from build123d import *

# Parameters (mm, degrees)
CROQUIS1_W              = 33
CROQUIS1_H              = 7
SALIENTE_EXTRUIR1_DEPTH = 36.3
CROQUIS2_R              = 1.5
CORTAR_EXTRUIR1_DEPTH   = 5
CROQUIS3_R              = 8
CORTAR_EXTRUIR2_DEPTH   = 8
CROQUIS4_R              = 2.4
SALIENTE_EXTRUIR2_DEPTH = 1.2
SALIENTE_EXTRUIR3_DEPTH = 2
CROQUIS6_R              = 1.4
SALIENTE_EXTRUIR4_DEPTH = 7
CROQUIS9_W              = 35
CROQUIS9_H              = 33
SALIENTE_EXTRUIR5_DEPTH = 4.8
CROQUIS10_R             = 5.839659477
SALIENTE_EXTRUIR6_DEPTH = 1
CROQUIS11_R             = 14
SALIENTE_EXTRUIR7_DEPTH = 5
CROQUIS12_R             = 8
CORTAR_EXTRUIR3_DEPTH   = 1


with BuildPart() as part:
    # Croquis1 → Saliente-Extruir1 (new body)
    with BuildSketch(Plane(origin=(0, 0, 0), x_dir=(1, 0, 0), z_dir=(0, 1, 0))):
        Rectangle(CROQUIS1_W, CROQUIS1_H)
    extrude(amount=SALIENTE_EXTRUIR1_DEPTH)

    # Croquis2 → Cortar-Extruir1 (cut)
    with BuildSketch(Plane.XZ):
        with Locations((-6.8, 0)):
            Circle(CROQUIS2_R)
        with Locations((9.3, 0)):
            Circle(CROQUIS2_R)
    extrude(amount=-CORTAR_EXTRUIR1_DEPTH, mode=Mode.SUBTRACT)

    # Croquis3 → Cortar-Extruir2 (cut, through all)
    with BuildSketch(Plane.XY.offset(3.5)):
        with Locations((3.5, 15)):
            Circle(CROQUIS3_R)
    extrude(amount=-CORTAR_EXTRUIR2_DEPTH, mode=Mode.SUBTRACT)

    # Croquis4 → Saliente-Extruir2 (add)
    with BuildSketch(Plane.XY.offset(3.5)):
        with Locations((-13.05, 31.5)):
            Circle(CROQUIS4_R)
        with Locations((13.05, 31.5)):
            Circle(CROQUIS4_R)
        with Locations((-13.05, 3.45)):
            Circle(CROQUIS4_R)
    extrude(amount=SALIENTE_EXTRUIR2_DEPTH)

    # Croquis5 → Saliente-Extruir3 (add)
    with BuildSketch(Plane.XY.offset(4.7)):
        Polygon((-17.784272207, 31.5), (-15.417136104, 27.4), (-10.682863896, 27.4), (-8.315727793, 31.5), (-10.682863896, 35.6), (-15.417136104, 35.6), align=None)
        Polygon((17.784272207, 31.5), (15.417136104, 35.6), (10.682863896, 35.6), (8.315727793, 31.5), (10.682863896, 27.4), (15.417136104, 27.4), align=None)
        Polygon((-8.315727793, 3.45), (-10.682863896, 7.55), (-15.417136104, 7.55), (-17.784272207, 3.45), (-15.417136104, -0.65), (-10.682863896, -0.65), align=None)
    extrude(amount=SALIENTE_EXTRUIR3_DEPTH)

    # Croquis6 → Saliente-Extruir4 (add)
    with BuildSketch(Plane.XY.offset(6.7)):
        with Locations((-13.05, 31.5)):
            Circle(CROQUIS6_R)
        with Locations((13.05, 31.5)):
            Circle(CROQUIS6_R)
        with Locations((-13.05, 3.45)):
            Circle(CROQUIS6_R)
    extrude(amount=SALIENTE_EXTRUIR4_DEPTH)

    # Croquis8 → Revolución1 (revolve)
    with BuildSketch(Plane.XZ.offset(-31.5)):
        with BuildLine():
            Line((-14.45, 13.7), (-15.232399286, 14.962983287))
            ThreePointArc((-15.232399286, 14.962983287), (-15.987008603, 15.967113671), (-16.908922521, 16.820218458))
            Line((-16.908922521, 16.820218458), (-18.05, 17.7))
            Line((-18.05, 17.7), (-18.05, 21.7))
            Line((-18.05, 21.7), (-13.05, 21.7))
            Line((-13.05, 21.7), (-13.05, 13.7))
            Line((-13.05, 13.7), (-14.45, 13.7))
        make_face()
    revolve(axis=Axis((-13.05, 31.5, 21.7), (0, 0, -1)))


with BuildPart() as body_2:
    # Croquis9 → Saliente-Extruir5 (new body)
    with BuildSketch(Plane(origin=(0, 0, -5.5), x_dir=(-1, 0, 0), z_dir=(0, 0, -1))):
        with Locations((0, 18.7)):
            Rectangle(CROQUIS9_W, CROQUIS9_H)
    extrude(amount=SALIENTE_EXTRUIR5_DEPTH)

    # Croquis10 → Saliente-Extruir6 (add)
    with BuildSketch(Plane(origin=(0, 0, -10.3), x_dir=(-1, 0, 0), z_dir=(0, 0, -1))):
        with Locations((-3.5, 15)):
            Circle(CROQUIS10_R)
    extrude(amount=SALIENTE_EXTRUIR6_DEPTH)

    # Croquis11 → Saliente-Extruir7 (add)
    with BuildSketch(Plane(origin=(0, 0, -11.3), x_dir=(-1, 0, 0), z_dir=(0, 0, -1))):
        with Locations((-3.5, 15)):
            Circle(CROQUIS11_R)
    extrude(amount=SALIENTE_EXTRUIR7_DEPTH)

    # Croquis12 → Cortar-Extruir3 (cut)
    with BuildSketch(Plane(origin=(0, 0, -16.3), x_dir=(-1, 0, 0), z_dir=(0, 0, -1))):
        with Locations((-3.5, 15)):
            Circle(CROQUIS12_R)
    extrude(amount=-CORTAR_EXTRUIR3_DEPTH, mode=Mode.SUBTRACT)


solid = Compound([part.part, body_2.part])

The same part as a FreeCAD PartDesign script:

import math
import FreeCAD as App
import Part
import Sketcher
Q = App.Units.Quantity


def add_polygon(sketch, points):
    """Adds a closed chain of lines whose ends are joined by coincident constraints."""
    first, n = sketch.GeometryCount, len(points)
    for a, b in zip(points, points[1:] + points[:1]):
        sketch.addGeometry(Part.LineSegment(App.Vector(*a, 0), App.Vector(*b, 0)), False)
    for i in range(n):
        sketch.addConstraint(Sketcher.Constraint("Coincident", first + i, 2, first + (i + 1) % n, 1))

doc = App.newDocument("Part")
body = doc.addObject("PartDesign::Body", "Body")

# Sketch on XZ plane
sketch1 = body.newObject("Sketcher::SketchObject", "Sketch")
sketch1.AttachmentSupport = (doc.getObject("XZ_Plane"), [""])
sketch1.MapMode = "FlatFace"
add_polygon(sketch1, [(-16, -4), (-16, 4), (16, 4), (16, -4)])  # lines 0-3
sketch1.addConstraint([
    Sketcher.Constraint("Vertical", 0),
    Sketcher.Constraint("Horizontal", 1),
    Sketcher.Constraint("Vertical", 2),
    Sketcher.Constraint("Horizontal", 3),
    Sketcher.Constraint("Symmetric", 0, 2, 2, 2, -1, 1),
    Sketcher.Constraint("DistanceX", 1, 1, 1, 2, Q("33 mm")),
    Sketcher.Constraint("DistanceY", 0, 1, 0, 2, Q("7 mm")),
])
pad1 = body.newObject("PartDesign::Pad", "Pad")
pad1.Profile = sketch1
pad1.Length = 36.3
pad1.Reversed = True

# Sketch on XZ plane
sketch2 = body.newObject("Sketcher::SketchObject", "Sketch001")
sketch2.AttachmentSupport = (doc.getObject("XZ_Plane"), [""])
sketch2.MapMode = "FlatFace"
sketch2.addGeometry([
    Part.Circle(App.Vector(-6.8, 0, 0), App.Vector(0, 0, 1), 1.5),
    Part.Circle(App.Vector(9.3, 0, 0), App.Vector(0, 0, 1), 1.5),
], False)
sketch2.addConstraint([
    Sketcher.Constraint("Equal", 0, 1),
    Sketcher.Constraint("PointOnObject", 0, 3, -1),
    Sketcher.Constraint("PointOnObject", 1, 3, -1),
    Sketcher.Constraint("Diameter", 0, Q("3 mm")),
    Sketcher.Constraint("DistanceX", 0, 3, -1, 1, Q("6.8 mm")),
    Sketcher.Constraint("DistanceX", -1, 1, 1, 3, Q("9.3 mm")),
])
pocket1 = body.newObject("PartDesign::Pocket", "Pocket")
pocket1.Profile = sketch2
pocket1.Length = 5

# Sketch on XY plane
sketch3 = body.newObject("Sketcher::SketchObject", "Sketch002")
sketch3.AttachmentSupport = (doc.getObject("XY_Plane"), [""])
sketch3.MapMode = "FlatFace"
sketch3.AttachmentOffset = App.Placement(App.Vector(0, 0, 3.5), App.Rotation())
sketch3.addGeometry(Part.Circle(App.Vector(4, 15, 0), App.Vector(0, 0, 1), 8), False)
sketch3.addConstraint([
    Sketcher.Constraint("Diameter", 0, Q("16 mm")),
    Sketcher.Constraint("DistanceY", -1, 1, 0, 3, Q("15 mm")),
    Sketcher.Constraint("DistanceX", -1, 1, 0, 3, Q("3.5 mm")),
])
pocket2 = body.newObject("PartDesign::Pocket", "Pocket001")
pocket2.Profile = sketch3
pocket2.Type = "ThroughAll"

# Sketch on XY plane
sketch4 = body.newObject("Sketcher::SketchObject", "Sketch003")
sketch4.AttachmentSupport = (doc.getObject("XY_Plane"), [""])
sketch4.MapMode = "FlatFace"
sketch4.AttachmentOffset = App.Placement(App.Vector(0, 0, 3.5), App.Rotation())
sketch4.addGeometry([
    Part.Circle(App.Vector(-13.1, 31.5, 0), App.Vector(0, 0, 1), 2.4),
    Part.Circle(App.Vector(13.1, 31.5, 0), App.Vector(0, 0, 1), 2.4),
    Part.Circle(App.Vector(-13.1, 3.5, 0), App.Vector(0, 0, 1), 2.4),
], False)
sketch4.addConstraint([
    Sketcher.Constraint("Equal", 0, 1),
    Sketcher.Constraint("Equal", 1, 2),
    Sketcher.Constraint("Symmetric", 0, 3, 1, 3, -2),
    Sketcher.Constraint("Vertical", 0, 3, 2, 3),
    Sketcher.Constraint("Diameter", 0, Q("4.8 mm")),
    Sketcher.Constraint("DistanceY", -1, 1, 0, 3, Q("31.5 mm")),
    Sketcher.Constraint("DistanceX", 0, 3, 1, 3, Q("26.1 mm")),
    Sketcher.Constraint("DistanceY", -1, 1, 2, 3, Q("3.45 mm")),
])
pad2 = body.newObject("PartDesign::Pad", "Pad001")
pad2.Profile = sketch4
pad2.Length = 1.2

# Sketch on XY plane
sketch5 = body.newObject("Sketcher::SketchObject", "Sketch004")
sketch5.AttachmentSupport = (doc.getObject("XY_Plane"), [""])
sketch5.MapMode = "FlatFace"
sketch5.AttachmentOffset = App.Placement(App.Vector(0, 0, 4.7), App.Rotation())
add_polygon(sketch5, [(-17.8, 31.5), (-15.4, 27.4), (-10.7, 27.4), (-8.3, 31.5), (-10.7, 35.6), (-15.4, 35.6)])  # lines 0-5
add_polygon(sketch5, [(17.8, 31.5), (15.4, 35.6), (10.7, 35.6), (8.3, 31.5), (10.7, 27.4), (15.4, 27.4)])  # lines 6-11
add_polygon(sketch5, [(-8.3, 3.5), (-10.7, 7.5), (-15.4, 7.5), (-17.8, 3.5), (-15.4, -0.7), (-10.7, -0.7)])  # lines 12-17
sketch5.addConstraint([
    Sketcher.Constraint("Horizontal", 1),
    Sketcher.Constraint("Horizontal", 4),
    Sketcher.Constraint("Horizontal", 7),
    Sketcher.Constraint("Horizontal", 10),
    Sketcher.Constraint("Horizontal", 13),
    Sketcher.Constraint("Horizontal", 16),
    Sketcher.Constraint("Symmetric", 4, 2, 6, 2, -2),
    Sketcher.Constraint("Symmetric", 2, 2, 8, 2, -2),
    Sketcher.Constraint("Symmetric", 1, 2, 9, 2, -2),
    Sketcher.Constraint("Symmetric", 5, 2, 11, 2, -2),
    Sketcher.Constraint("Parallel", 0, 3),
    Sketcher.Constraint("Parallel", 2, 5),
    Sketcher.Constraint("Parallel", 3, 6),
    Sketcher.Constraint("Parallel", 5, 8),
    Sketcher.Constraint("Parallel", 8, 11),
    Sketcher.Constraint("Parallel", 9, 12),
    Sketcher.Constraint("Parallel", 11, 14),
    Sketcher.Constraint("Parallel", 12, 15),
    Sketcher.Constraint("Parallel", 14, 17),
    Sketcher.Constraint("Horizontal", 2, 2, 5, 2),
    Sketcher.Constraint("Horizontal", 14, 2, 17, 2),
    Sketcher.Constraint("Vertical", 1, 2, 3, 2),
    Sketcher.Constraint("Vertical", 3, 2, 12, 2),
    Sketcher.Constraint("Vertical", 4, 2, 13, 2),
    Sketcher.Constraint("Vertical", 5, 2, 14, 2),
    Sketcher.Constraint("Vertical", 13, 2, 15, 2),
    Sketcher.Constraint("Angle", 0, Q("-60 deg")),
    Sketcher.Constraint("DistanceY", -1, 1, 0, 2, Q("27.4 mm")),
    Sketcher.Constraint("DistanceY", -1, 1, 2, 2, Q("31.5 mm")),
    Sketcher.Constraint("DistanceX", 3, 2, 6, 2, Q("26.1 mm")),
    Sketcher.Constraint("DistanceY", -1, 1, 12, 2, Q("7.55 mm")),
    Sketcher.Constraint("DistanceX", 1, 1, 1, 2, Q("4.734272 mm")),
])
pad3 = body.newObject("PartDesign::Pad", "Pad002")
pad3.Profile = sketch5
pad3.Length = 2

# Sketch on XY plane
sketch6 = body.newObject("Sketcher::SketchObject", "Sketch005")
sketch6.AttachmentSupport = (doc.getObject("XY_Plane"), [""])
sketch6.MapMode = "FlatFace"
sketch6.AttachmentOffset = App.Placement(App.Vector(0, 0, 6.7), App.Rotation())
sketch6.addGeometry([
    Part.Circle(App.Vector(-13.1, 31.5, 0), App.Vector(0, 0, 1), 1.4),
    Part.Circle(App.Vector(13.1, 31.5, 0), App.Vector(0, 0, 1), 1.4),
    Part.Circle(App.Vector(-13.1, 3.5, 0), App.Vector(0, 0, 1), 1.4),
], False)
sketch6.addConstraint([
    Sketcher.Constraint("Equal", 0, 1),
    Sketcher.Constraint("Equal", 1, 2),
    Sketcher.Constraint("Symmetric", 0, 3, 1, 3, -2),
    Sketcher.Constraint("Vertical", 0, 3, 2, 3),
    Sketcher.Constraint("Diameter", 0, Q("2.8 mm")),
    Sketcher.Constraint("DistanceY", -1, 1, 0, 3, Q("31.5 mm")),
    Sketcher.Constraint("DistanceX", 0, 3, 1, 3, Q("26.1 mm")),
    Sketcher.Constraint("DistanceY", -1, 1, 2, 3, Q("3.45 mm")),
])
pad4 = body.newObject("PartDesign::Pad", "Pad003")
pad4.Profile = sketch6
pad4.Length = 7

# Sketch on XZ plane
sketch7 = body.newObject("Sketcher::SketchObject", "Sketch006")
sketch7.AttachmentSupport = (doc.getObject("XZ_Plane"), [""])
sketch7.MapMode = "FlatFace"
sketch7.AttachmentOffset = App.Placement(App.Vector(0, 0, -31.5), App.Rotation())
sketch7.addGeometry([
    Part.LineSegment(App.Vector(-15.2, 15, 0), App.Vector(-14.4, 13.7, 0)),  # 0
    Part.LineSegment(App.Vector(-14.4, 13.7, 0), App.Vector(-13.1, 13.7, 0)),  # 1
    Part.LineSegment(App.Vector(-13.1, 13.7, 0), App.Vector(-13.1, 21.7, 0)),  # 2
    Part.LineSegment(App.Vector(-13.1, 21.7, 0), App.Vector(-18.1, 21.7, 0)),  # 3
    Part.LineSegment(App.Vector(-18.1, 21.7, 0), App.Vector(-18.1, 17.7, 0)),  # 4
    Part.LineSegment(App.Vector(-18.1, 17.7, 0), App.Vector(-16.9, 16.8, 0)),  # 5
    Part.ArcOfCircle(Part.Circle(App.Vector(-21.2, 11.3, 0), App.Vector(0, 0, 1), 7), math.radians(32), math.radians(52)),  # 6
], False)
sketch7.addGeometry(Part.LineSegment(App.Vector(-13.1, 21.7, 0), App.Vector(-13.1, 11.3, 0)), True)  # axis
sketch7.addConstraint([
    Sketcher.Constraint("Coincident", 0, 2, 1, 1),
    Sketcher.Constraint("Coincident", 1, 2, 2, 1),
    Sketcher.Constraint("Coincident", 2, 2, 3, 1),
    Sketcher.Constraint("Coincident", 3, 2, 4, 1),
    Sketcher.Constraint("Coincident", 4, 2, 5, 1),
    Sketcher.Constraint("Tangent", 5, 2, 6, 2),
    Sketcher.Constraint("Tangent", 6, 1, 0, 1),
    Sketcher.Constraint("Horizontal", 1),
    Sketcher.Constraint("Vertical", 2),
    Sketcher.Constraint("Horizontal", 3),
    Sketcher.Constraint("Vertical", 4),
    Sketcher.Constraint("Vertical", 7),
    Sketcher.Constraint("Coincident", 7, 1, 2, 2),
    Sketcher.Constraint("Horizontal", 6, 3, 7, 2),
    Sketcher.Constraint("Radius", 6, Q("7 mm")),
    Sketcher.Constraint("DistanceX", 3, 2, 3, 1, Q("5 mm")),
    Sketcher.Constraint("DistanceY", 2, 1, 2, 2, Q("8 mm")),
    Sketcher.Constraint("DistanceY", 4, 2, 4, 1, Q("4 mm")),
    Sketcher.Constraint("DistanceX", 1, 1, 1, 2, Q("1.4 mm")),
    Sketcher.Constraint("DistanceY", -1, 1, 0, 2, Q("13.7 mm")),
    Sketcher.Constraint("DistanceX", 0, 2, -1, 1, Q("14.45 mm")),
    Sketcher.Constraint("DistanceY", 7, 2, 7, 1, Q("10.423381 mm")),
    Sketcher.Constraint("DistanceX", 6, 1, -1, 1, Q("15.232399 mm")),
])
revolution = body.newObject("PartDesign::Revolution", "Revolution")
revolution.Profile = sketch7
revolution.ReferenceAxis = (sketch7, ["Axis0"])
revolution.Angle = 360
body2 = doc.addObject("PartDesign::Body", "Body001")

# Sketch on XY plane
sketch8 = body2.newObject("Sketcher::SketchObject", "Sketch007")
sketch8.AttachmentSupport = (doc.getObject("XY_Plane001"), [""])
sketch8.MapMode = "FlatFace"
sketch8.AttachmentOffset = App.Placement(App.Vector(0, 0, -5.5), App.Rotation())
add_polygon(sketch8, [(18, 35), (18, 2), (-18, 2), (-18, 35)])  # lines 0-3
sketch8.addConstraint([
    Sketcher.Constraint("Vertical", 0),
    Sketcher.Constraint("Horizontal", 1),
    Sketcher.Constraint("Vertical", 2),
    Sketcher.Constraint("Horizontal", 3),
    Sketcher.Constraint("DistanceX", 1, 2, 1, 1, Q("35 mm")),
    Sketcher.Constraint("DistanceY", 0, 2, 0, 1, Q("33 mm")),
    Sketcher.Constraint("DistanceX", -1, 1, 0, 2, Q("17.5 mm")),
    Sketcher.Constraint("DistanceY", -1, 1, 0, 2, Q("2.2 mm")),
])
pad5 = body2.newObject("PartDesign::Pad", "Pad004")
pad5.Profile = sketch8
pad5.Length = 4.8
pad5.Reversed = True

# Sketch on XY plane
sketch9 = body2.newObject("Sketcher::SketchObject", "Sketch008")
sketch9.AttachmentSupport = (doc.getObject("XY_Plane001"), [""])
sketch9.MapMode = "FlatFace"
sketch9.AttachmentOffset = App.Placement(App.Vector(0, 0, -10.3), App.Rotation())
sketch9.addGeometry(Part.Circle(App.Vector(4, 15, 0), App.Vector(0, 0, 1), 6), False)
sketch9.addConstraint([
    Sketcher.Constraint("DistanceY", -1, 1, 0, 3, Q("15 mm")),
    Sketcher.Constraint("DistanceX", -1, 1, 0, 3, Q("3.5 mm")),
    Sketcher.Constraint("Diameter", 0, Q("11.679319 mm")),
])
pad6 = body2.newObject("PartDesign::Pad", "Pad005")
pad6.Profile = sketch9
pad6.Length = 1
pad6.Reversed = True

# Sketch on XY plane
sketch10 = body2.newObject("Sketcher::SketchObject", "Sketch009")
sketch10.AttachmentSupport = (doc.getObject("XY_Plane001"), [""])
sketch10.MapMode = "FlatFace"
sketch10.AttachmentOffset = App.Placement(App.Vector(0, 0, -11.3), App.Rotation())
sketch10.addGeometry(Part.Circle(App.Vector(4, 15, 0), App.Vector(0, 0, 1), 14), False)
sketch10.addConstraint([
    Sketcher.Constraint("Diameter", 0, Q("28 mm")),
    Sketcher.Constraint("DistanceY", -1, 1, 0, 3, Q("15 mm")),
    Sketcher.Constraint("DistanceX", -1, 1, 0, 3, Q("3.5 mm")),
])
pad7 = body2.newObject("PartDesign::Pad", "Pad006")
pad7.Profile = sketch10
pad7.Length = 5
pad7.Reversed = True

# Sketch on XY plane
sketch11 = body2.newObject("Sketcher::SketchObject", "Sketch010")
sketch11.AttachmentSupport = (doc.getObject("XY_Plane001"), [""])
sketch11.MapMode = "FlatFace"
sketch11.AttachmentOffset = App.Placement(App.Vector(0, 0, -16.3), App.Rotation())
sketch11.addGeometry(Part.Circle(App.Vector(4, 15, 0), App.Vector(0, 0, 1), 8), False)
sketch11.addConstraint([
    Sketcher.Constraint("Diameter", 0, Q("16 mm")),
    Sketcher.Constraint("DistanceY", -1, 1, 0, 3, Q("15 mm")),
    Sketcher.Constraint("DistanceX", -1, 1, 0, 3, Q("3.5 mm")),
])
pocket3 = body2.newObject("PartDesign::Pocket", "Pocket002")
pocket3.Profile = sketch11
pocket3.Length = 1
pocket3.Reversed = True

doc.recompute()
